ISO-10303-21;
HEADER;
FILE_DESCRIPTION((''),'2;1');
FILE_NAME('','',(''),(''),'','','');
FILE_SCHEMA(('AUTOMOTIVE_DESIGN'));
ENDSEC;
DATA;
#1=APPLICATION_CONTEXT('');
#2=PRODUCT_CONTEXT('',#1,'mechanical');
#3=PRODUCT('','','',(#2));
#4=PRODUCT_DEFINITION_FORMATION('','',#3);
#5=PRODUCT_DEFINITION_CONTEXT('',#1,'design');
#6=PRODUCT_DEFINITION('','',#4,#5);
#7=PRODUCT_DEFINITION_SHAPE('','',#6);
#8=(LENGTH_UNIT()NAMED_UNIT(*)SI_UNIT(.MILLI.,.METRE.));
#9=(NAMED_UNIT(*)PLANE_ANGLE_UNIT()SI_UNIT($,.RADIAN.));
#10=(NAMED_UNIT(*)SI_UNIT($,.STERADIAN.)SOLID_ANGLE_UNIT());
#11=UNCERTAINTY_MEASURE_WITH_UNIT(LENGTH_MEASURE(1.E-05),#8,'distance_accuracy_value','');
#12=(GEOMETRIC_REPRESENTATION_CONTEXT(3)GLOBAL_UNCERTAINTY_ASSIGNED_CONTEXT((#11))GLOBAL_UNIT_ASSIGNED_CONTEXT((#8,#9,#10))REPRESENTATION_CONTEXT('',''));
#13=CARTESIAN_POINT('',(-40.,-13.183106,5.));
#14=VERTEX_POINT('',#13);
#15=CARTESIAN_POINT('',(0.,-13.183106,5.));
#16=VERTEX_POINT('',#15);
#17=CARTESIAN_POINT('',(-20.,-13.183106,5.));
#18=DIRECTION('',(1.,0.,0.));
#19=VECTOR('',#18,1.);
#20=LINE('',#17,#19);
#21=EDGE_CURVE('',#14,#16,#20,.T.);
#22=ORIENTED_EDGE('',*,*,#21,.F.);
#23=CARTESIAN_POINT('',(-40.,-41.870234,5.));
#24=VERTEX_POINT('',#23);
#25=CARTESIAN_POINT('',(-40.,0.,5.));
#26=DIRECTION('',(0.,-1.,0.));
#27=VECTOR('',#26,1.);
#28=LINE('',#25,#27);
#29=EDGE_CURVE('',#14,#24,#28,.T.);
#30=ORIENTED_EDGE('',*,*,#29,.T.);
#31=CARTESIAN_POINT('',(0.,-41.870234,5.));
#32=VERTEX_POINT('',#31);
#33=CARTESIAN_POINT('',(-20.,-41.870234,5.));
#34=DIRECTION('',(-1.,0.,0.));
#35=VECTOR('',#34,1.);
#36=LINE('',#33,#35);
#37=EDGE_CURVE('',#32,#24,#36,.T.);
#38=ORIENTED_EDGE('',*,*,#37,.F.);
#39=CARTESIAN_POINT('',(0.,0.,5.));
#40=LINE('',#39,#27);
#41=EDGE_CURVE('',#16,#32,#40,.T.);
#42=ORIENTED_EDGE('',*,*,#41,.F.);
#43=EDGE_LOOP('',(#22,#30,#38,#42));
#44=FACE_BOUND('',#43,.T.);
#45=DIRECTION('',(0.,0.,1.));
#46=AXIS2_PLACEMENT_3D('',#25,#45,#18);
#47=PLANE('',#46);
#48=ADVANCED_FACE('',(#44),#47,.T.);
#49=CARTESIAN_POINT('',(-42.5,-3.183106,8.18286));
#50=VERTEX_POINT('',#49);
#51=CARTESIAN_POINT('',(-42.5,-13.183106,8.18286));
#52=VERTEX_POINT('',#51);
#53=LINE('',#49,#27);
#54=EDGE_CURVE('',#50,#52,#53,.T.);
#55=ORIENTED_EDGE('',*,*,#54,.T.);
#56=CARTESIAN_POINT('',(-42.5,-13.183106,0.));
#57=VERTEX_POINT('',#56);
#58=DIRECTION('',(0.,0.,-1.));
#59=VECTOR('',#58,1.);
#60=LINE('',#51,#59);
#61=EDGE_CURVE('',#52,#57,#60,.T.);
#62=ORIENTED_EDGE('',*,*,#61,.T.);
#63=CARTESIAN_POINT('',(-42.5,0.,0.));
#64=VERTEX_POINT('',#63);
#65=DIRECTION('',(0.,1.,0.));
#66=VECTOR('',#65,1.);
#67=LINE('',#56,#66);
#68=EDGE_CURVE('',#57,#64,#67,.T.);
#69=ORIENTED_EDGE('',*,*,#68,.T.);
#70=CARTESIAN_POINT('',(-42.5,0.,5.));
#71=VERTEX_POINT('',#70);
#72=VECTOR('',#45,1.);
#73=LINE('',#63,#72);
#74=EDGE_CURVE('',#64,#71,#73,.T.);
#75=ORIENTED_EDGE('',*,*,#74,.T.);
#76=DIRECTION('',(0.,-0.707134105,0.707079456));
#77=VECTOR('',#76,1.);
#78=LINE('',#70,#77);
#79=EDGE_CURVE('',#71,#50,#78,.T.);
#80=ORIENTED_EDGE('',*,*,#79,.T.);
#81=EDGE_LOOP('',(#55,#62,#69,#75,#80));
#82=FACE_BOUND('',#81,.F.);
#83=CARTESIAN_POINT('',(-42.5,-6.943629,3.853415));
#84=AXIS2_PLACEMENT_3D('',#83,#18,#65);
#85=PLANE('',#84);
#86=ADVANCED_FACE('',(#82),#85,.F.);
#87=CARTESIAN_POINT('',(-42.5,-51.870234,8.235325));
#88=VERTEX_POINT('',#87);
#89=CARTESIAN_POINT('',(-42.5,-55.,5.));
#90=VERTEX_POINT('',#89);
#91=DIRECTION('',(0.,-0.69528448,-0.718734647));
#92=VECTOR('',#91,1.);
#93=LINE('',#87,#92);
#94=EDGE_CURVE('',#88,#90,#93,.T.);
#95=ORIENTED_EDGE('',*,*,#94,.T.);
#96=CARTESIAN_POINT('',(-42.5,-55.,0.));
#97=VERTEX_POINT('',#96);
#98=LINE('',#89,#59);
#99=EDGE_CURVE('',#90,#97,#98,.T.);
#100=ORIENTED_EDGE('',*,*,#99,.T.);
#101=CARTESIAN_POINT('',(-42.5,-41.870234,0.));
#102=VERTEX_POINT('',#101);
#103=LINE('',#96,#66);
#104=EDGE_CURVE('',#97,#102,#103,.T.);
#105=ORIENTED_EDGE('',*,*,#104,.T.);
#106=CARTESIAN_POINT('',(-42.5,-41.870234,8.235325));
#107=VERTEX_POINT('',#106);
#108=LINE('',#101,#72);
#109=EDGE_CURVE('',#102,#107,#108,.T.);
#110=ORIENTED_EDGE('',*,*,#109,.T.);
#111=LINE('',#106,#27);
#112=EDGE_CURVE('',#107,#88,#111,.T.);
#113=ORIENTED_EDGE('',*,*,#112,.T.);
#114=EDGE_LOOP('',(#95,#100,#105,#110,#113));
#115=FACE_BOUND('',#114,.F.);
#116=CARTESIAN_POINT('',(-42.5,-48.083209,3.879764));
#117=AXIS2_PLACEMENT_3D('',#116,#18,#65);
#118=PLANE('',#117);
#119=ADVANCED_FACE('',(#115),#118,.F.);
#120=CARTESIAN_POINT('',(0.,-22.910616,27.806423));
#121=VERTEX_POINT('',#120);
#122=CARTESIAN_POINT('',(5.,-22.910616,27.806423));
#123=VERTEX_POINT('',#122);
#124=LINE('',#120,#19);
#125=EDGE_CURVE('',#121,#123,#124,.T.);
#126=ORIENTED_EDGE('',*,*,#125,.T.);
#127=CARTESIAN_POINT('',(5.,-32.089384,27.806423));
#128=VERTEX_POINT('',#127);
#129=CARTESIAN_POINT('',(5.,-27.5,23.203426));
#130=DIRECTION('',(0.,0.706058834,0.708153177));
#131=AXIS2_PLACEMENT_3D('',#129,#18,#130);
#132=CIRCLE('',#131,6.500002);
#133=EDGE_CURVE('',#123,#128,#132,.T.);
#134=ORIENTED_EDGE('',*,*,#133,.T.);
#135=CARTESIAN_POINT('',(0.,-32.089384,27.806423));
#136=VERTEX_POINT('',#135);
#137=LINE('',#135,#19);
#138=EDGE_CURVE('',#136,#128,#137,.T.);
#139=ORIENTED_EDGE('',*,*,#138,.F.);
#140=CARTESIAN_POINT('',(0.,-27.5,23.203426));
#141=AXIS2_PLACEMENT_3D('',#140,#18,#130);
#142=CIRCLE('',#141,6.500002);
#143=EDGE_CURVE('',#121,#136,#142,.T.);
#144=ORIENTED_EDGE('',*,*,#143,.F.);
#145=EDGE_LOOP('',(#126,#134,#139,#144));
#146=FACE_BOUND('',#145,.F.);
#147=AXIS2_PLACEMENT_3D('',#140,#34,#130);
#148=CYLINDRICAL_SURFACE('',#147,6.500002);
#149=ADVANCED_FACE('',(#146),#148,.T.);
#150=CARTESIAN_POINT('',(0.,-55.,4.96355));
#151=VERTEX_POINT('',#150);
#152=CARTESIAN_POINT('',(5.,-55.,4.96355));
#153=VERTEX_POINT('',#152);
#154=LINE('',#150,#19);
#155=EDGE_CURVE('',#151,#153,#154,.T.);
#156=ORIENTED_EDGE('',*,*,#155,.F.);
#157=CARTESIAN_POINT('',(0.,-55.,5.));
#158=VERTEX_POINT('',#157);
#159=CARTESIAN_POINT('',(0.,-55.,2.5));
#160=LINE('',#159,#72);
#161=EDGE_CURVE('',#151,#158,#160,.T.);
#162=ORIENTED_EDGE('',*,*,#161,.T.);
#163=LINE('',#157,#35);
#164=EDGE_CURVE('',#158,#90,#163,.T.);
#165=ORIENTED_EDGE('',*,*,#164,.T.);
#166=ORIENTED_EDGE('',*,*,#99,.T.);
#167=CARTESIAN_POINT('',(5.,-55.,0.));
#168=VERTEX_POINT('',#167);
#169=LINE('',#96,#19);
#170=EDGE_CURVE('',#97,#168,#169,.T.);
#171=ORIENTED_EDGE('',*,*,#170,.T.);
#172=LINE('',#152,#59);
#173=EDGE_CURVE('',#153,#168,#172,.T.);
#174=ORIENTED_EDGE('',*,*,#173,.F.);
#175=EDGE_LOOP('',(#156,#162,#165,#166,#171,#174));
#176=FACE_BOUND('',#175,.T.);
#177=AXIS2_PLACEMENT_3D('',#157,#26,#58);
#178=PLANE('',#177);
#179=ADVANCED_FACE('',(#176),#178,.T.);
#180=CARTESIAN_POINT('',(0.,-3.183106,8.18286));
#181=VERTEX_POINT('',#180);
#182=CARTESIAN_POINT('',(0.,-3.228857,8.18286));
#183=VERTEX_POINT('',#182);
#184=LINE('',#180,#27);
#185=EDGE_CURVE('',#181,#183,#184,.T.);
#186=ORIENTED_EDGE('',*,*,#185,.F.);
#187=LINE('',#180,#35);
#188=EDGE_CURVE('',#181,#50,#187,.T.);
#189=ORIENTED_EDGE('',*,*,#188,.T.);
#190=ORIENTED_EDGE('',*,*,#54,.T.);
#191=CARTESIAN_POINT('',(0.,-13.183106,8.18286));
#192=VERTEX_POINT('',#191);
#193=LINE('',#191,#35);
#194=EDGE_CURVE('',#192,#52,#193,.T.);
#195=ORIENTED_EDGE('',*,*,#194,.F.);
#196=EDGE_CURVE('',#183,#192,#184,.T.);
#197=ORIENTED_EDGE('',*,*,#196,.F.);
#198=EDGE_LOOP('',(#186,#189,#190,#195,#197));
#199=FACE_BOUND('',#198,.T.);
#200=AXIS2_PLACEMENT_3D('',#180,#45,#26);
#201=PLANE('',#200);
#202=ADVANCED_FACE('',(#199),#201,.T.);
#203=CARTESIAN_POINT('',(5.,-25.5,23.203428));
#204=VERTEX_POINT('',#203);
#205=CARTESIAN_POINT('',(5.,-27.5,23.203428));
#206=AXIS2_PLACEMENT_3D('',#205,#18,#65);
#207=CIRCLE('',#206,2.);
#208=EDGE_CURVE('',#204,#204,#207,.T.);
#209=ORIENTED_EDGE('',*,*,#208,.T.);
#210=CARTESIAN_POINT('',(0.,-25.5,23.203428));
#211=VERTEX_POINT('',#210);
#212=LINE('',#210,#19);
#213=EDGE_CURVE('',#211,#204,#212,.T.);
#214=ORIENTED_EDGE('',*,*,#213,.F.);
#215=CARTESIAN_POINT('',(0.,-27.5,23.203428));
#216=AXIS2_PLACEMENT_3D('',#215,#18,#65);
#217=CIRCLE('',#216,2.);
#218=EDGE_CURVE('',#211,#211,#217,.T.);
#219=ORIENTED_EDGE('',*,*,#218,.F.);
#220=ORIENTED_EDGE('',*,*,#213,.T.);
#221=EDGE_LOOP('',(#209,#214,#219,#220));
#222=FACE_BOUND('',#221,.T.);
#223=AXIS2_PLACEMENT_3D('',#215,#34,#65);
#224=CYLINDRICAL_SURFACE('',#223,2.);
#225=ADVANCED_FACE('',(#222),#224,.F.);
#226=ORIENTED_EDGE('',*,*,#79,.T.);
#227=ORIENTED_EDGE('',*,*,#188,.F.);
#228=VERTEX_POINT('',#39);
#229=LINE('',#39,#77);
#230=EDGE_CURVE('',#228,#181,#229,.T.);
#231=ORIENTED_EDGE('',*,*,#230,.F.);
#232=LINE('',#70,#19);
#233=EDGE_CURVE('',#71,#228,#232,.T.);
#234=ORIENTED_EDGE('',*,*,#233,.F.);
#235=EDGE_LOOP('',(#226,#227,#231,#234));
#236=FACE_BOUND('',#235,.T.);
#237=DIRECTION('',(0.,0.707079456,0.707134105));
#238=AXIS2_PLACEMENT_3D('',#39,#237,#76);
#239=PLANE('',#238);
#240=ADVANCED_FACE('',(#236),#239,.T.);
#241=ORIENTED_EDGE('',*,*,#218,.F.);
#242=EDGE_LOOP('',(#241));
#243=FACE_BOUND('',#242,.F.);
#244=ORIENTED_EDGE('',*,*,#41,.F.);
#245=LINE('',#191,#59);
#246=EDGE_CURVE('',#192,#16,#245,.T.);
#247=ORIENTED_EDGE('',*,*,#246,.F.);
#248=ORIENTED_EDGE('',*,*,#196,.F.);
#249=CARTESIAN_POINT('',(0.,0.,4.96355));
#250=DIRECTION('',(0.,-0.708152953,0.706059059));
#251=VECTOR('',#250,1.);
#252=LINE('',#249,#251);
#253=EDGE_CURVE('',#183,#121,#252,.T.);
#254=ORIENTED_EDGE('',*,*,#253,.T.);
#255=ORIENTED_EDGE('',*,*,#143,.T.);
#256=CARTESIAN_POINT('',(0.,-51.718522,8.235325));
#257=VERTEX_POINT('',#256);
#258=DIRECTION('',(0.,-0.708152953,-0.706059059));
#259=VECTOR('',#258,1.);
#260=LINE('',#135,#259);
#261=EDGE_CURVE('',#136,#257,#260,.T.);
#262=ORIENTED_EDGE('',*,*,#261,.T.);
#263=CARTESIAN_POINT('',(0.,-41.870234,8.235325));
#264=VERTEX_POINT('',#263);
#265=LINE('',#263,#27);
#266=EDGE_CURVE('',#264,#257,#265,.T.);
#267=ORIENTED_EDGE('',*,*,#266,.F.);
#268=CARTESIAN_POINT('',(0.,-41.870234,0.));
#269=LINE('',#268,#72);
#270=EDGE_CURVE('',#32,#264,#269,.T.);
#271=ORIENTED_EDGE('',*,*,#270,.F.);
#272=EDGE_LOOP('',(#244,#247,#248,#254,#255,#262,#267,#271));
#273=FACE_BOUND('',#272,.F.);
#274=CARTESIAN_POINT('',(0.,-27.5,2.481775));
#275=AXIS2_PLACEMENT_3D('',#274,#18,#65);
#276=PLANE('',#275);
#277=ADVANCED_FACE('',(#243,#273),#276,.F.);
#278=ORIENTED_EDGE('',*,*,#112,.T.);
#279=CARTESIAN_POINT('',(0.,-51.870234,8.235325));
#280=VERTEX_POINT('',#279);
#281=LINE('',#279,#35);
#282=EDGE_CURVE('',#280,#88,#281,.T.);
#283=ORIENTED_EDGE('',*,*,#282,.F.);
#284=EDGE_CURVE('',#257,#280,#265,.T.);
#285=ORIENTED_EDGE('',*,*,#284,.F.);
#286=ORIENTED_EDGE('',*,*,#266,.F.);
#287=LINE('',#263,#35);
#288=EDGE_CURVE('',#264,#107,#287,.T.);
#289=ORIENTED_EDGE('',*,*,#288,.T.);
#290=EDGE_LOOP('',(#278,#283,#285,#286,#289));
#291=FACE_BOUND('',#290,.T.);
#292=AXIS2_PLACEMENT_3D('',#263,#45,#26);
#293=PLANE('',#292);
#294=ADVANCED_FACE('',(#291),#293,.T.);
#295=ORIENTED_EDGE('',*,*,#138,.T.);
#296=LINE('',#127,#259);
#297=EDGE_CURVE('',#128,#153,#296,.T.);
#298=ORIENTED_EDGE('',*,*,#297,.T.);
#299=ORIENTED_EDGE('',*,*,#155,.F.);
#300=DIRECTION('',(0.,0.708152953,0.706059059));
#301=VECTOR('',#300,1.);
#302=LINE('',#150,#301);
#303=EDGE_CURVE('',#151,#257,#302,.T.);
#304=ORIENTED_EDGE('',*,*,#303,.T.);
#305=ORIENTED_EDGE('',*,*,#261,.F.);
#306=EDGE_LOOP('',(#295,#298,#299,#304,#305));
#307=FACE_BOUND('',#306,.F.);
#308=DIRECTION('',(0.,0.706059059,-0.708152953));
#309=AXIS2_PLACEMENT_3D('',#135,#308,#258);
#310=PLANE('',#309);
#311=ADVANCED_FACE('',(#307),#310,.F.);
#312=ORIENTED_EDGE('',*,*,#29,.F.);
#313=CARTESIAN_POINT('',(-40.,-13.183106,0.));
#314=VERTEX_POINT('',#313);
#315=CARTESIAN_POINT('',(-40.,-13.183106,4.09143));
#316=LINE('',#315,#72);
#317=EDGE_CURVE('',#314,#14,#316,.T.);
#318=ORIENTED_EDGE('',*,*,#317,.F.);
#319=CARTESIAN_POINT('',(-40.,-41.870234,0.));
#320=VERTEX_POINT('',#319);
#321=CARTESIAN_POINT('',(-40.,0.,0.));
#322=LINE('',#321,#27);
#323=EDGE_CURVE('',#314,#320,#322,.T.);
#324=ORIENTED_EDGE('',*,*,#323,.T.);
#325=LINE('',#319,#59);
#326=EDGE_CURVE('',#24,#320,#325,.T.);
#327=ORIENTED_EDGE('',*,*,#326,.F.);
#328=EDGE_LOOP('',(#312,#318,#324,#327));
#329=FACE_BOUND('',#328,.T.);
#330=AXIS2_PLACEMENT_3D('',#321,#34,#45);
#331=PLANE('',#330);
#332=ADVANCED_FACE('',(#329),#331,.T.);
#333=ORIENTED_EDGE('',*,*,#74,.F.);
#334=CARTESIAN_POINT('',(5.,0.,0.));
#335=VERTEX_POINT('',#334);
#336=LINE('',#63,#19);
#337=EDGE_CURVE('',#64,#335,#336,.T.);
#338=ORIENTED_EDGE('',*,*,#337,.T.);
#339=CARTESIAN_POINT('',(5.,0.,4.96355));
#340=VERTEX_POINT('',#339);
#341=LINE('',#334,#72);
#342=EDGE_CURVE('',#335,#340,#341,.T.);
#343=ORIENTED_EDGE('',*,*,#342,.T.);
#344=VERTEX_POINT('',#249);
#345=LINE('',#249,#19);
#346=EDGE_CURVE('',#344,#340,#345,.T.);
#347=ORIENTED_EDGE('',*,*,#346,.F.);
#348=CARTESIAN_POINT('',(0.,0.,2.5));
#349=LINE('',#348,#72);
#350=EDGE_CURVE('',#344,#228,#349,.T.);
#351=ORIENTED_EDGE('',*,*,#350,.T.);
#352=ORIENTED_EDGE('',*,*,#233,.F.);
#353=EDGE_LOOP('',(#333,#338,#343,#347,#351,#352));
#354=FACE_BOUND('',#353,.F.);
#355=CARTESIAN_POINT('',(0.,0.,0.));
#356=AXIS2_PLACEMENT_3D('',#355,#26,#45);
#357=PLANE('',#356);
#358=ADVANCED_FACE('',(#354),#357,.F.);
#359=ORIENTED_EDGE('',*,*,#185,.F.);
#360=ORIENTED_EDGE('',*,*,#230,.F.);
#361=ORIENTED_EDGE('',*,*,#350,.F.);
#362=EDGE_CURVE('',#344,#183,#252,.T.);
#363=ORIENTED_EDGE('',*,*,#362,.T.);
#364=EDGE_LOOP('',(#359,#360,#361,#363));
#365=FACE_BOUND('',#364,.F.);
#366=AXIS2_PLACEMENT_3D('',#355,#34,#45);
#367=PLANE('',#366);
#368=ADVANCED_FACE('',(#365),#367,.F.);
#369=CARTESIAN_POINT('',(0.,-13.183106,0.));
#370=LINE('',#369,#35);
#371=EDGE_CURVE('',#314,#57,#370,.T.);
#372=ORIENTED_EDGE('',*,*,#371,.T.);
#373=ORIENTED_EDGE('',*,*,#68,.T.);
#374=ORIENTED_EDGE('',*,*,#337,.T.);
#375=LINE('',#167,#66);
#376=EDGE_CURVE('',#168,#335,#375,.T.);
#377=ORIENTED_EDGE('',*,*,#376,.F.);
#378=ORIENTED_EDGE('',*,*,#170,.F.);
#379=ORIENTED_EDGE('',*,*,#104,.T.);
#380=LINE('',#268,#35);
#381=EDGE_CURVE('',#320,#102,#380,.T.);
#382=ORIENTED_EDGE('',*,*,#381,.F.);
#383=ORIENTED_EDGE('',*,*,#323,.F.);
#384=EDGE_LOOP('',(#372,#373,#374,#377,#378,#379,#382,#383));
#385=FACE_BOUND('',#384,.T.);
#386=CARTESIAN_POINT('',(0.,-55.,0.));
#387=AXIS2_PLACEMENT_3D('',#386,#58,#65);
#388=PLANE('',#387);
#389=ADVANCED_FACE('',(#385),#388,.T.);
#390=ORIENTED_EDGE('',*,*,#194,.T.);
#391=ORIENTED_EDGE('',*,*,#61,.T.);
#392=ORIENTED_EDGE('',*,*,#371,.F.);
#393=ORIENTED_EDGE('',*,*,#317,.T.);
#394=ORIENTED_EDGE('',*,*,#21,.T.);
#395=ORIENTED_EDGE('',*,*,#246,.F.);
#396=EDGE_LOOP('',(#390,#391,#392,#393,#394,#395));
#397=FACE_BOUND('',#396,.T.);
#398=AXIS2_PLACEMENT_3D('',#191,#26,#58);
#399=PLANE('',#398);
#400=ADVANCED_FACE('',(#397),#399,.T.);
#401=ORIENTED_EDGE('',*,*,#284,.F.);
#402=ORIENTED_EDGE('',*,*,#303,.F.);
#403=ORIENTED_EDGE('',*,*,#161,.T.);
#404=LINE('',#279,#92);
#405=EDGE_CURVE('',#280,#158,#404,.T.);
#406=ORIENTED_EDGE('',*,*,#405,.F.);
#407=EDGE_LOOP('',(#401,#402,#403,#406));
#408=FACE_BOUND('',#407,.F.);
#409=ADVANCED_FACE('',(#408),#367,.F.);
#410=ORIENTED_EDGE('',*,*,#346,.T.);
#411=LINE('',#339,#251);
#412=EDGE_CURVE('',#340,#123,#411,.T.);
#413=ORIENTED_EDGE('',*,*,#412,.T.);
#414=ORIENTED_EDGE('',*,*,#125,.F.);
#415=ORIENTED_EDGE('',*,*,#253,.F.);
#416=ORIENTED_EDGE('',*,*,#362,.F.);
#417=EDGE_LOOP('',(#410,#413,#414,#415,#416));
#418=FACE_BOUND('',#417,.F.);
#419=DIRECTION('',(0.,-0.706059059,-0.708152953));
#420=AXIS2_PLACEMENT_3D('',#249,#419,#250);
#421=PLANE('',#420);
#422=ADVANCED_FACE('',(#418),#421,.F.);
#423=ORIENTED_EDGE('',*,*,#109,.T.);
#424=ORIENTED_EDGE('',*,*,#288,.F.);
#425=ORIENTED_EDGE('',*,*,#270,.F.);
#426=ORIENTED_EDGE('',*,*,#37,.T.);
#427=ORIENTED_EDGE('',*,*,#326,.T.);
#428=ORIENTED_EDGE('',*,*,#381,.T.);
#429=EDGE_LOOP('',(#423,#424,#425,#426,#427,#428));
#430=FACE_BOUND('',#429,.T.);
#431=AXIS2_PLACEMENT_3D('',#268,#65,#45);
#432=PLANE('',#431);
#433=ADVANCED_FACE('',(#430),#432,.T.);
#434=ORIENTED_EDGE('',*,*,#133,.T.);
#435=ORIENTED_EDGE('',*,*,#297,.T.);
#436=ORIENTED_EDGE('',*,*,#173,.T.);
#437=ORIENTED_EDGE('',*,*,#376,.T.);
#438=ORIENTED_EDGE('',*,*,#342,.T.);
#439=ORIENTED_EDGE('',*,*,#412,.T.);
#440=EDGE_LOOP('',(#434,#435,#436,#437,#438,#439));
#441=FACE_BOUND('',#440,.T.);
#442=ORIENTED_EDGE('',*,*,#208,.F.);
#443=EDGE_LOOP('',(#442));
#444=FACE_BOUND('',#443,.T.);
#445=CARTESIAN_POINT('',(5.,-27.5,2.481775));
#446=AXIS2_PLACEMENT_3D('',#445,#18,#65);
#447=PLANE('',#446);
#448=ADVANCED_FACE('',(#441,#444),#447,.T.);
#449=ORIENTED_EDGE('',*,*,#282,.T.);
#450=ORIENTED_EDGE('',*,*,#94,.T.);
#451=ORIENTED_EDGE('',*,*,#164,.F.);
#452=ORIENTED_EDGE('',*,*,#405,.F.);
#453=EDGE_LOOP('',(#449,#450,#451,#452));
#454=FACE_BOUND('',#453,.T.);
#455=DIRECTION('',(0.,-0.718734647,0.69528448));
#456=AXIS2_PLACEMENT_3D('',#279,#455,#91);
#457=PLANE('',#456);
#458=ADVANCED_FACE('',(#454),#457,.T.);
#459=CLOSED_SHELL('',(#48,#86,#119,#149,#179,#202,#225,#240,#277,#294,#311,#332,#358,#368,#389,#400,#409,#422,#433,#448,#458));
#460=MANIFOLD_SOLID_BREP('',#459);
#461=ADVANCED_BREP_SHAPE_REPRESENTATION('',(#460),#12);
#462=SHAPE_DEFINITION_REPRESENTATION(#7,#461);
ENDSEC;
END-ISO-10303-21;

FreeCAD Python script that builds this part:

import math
import FreeCAD as App
import Part
import Sketcher
Q = App.Units.Quantity


def add_polygon(sketch, points):
    """Adds a closed chain of lines whose ends are joined by coincident constraints."""
    first, n = sketch.GeometryCount, len(points)
    for a, b in zip(points, points[1:] + points[:1]):
        sketch.addGeometry(Part.LineSegment(App.Vector(*a, 0), App.Vector(*b, 0)), False)
    for i in range(n):
        sketch.addConstraint(Sketcher.Constraint("Coincident", first + i, 2, first + (i + 1) % n, 1))

doc = App.newDocument("Part")
body = doc.addObject("PartDesign::Body", "Body")

# Sketch on XZ plane
sketch1 = body.newObject("Sketcher::SketchObject", "Sketch")
sketch1.AttachmentSupport = (doc.getObject("XZ_Plane"), [""])
sketch1.MapMode = "FlatFace"
add_polygon(sketch1, [(-40, 5), (-40, 0), (0, 0), (0, 5)])  # lines 0-3
sketch1.addConstraint([
    Sketcher.Constraint("Vertical", 0),
    Sketcher.Constraint("Horizontal", 1),
    Sketcher.Constraint("Vertical", 2),
    Sketcher.Constraint("Horizontal", 3),
    Sketcher.Constraint("Coincident", 1, 2, -1, 1),
    Sketcher.Constraint("DistanceX", 1, 1, 1, 2, Q("40 mm")),
    Sketcher.Constraint("DistanceY", 0, 2, 0, 1, Q("5 mm")),
])
pad1 = body.newObject("PartDesign::Pad", "Pad")
pad1.Profile = sketch1
pad1.Length = 55

# Sketch on YZ plane
sketch2 = body.newObject("Sketcher::SketchObject", "Sketch001")
sketch2.AttachmentSupport = (doc.getObject("YZ_Plane"), [""])
sketch2.MapMode = "FlatFace"
sketch2.addGeometry([
    Part.LineSegment(App.Vector(0, 0, 0), App.Vector(0, 5, 0)),  # 0
    Part.LineSegment(App.Vector(0, 5, 0), App.Vector(-22.9, 27.8, 0)),  # 1
    Part.ArcOfCircle(Part.Circle(App.Vector(-27.5, 23.2, 0), App.Vector(0, 0, 1), 6.5), math.radians(45), math.radians(135)),  # 2
    Part.LineSegment(App.Vector(-32.1, 27.8, 0), App.Vector(-55, 5, 0)),  # 3
    Part.LineSegment(App.Vector(-55, 5, 0), App.Vector(-55, 0, 0)),  # 4
    Part.LineSegment(App.Vector(-55, 0, 0), App.Vector(0, 0, 0)),  # 5
    Part.Circle(App.Vector(-27.5, 23.2, 0), App.Vector(0, 0, 1), 2),  # 6
], False)
sketch2.addConstraint([
    Sketcher.Constraint("Coincident", 0, 2, 1, 1),
    Sketcher.Constraint("Tangent", 1, 2, 2, 1),
    Sketcher.Constraint("Tangent", 2, 2, 3, 1),
    Sketcher.Constraint("Coincident", 3, 2, 4, 1),
    Sketcher.Constraint("Coincident", 4, 2, 5, 1),
    Sketcher.Constraint("Coincident", 5, 2, 0, 1),
    Sketcher.Constraint("Vertical", 0),
    Sketcher.Constraint("Vertical", 4),
    Sketcher.Constraint("Horizontal", 5),
    Sketcher.Constraint("Coincident", 5, 2, -1, 1),
    Sketcher.Constraint("Coincident", 6, 3, 2, 3),
    Sketcher.Constraint("Horizontal", 1, 2, 2, 2),
    Sketcher.Constraint("Horizontal", 0, 2, 3, 2),
    Sketcher.Constraint("Diameter", 6, Q("4 mm")),
    Sketcher.Constraint("DistanceX", 5, 1, 5, 2, Q("55 mm")),
    Sketcher.Constraint("Radius", 2, Q("6.500002 mm")),
    Sketcher.Constraint("DistanceY", 0, 1, 0, 2, Q("4.96355 mm")),
    Sketcher.Constraint("Distance", 1, Q("32.352638 mm")),
])
pad2 = body.newObject("PartDesign::Pad", "Pad001")
pad2.Profile = sketch2
pad2.Length = 5

# Sketch on YZ plane
sketch3 = body.newObject("Sketcher::SketchObject", "Sketch002")
sketch3.AttachmentSupport = (doc.getObject("YZ_Plane"), [""])
sketch3.MapMode = "FlatFace"
add_polygon(sketch3, [(-55, 5), (-55, 0), (-41.9, 0), (-41.9, 8.2), (-51.9, 8.2)])  # lines 0-4
add_polygon(sketch3, [(0, 0), (0, 5), (-3.2, 8.2), (-13.2, 8.2), (-13.2, 0)])  # lines 5-9
sketch3.addConstraint([
    Sketcher.Constraint("Vertical", 0),
    Sketcher.Constraint("Horizontal", 1),
    Sketcher.Constraint("Vertical", 2),
    Sketcher.Constraint("Horizontal", 3),
    Sketcher.Constraint("Vertical", 5),
    Sketcher.Constraint("Horizontal", 7),
    Sketcher.Constraint("Vertical", 8),
    Sketcher.Constraint("Horizontal", 9),
    Sketcher.Constraint("Coincident", 9, 2, -1, 1),
    Sketcher.Constraint("PointOnObject", 0, 2, -1),
    Sketcher.Constraint("Horizontal", 4, 2, 5, 2),
    Sketcher.Constraint("Equal", 3, 7),
    Sketcher.Constraint("Equal", 4, 6),
    Sketcher.Constraint("DistanceX", 3, 2, 3, 1, Q("10 mm")),
    Sketcher.Constraint("DistanceY", 0, 2, 0, 1, Q("5 mm")),
    Sketcher.Constraint("DistanceX", 0, 2, -1, 1, Q("55 mm")),
    Sketcher.Constraint("DistanceY", 8, 2, 8, 1, Q("8.18286 mm")),
    Sketcher.Constraint("DistanceX", 1, 1, 1, 2, Q("13.129766 mm")),
    Sketcher.Constraint("DistanceX", 9, 1, 9, 2, Q("13.183106 mm")),
])
pad3 = body.newObject("PartDesign::Pad", "Pad002")
pad3.Profile = sketch3
pad3.Length = 42.5
pad3.Reversed = True

doc.recompute()
